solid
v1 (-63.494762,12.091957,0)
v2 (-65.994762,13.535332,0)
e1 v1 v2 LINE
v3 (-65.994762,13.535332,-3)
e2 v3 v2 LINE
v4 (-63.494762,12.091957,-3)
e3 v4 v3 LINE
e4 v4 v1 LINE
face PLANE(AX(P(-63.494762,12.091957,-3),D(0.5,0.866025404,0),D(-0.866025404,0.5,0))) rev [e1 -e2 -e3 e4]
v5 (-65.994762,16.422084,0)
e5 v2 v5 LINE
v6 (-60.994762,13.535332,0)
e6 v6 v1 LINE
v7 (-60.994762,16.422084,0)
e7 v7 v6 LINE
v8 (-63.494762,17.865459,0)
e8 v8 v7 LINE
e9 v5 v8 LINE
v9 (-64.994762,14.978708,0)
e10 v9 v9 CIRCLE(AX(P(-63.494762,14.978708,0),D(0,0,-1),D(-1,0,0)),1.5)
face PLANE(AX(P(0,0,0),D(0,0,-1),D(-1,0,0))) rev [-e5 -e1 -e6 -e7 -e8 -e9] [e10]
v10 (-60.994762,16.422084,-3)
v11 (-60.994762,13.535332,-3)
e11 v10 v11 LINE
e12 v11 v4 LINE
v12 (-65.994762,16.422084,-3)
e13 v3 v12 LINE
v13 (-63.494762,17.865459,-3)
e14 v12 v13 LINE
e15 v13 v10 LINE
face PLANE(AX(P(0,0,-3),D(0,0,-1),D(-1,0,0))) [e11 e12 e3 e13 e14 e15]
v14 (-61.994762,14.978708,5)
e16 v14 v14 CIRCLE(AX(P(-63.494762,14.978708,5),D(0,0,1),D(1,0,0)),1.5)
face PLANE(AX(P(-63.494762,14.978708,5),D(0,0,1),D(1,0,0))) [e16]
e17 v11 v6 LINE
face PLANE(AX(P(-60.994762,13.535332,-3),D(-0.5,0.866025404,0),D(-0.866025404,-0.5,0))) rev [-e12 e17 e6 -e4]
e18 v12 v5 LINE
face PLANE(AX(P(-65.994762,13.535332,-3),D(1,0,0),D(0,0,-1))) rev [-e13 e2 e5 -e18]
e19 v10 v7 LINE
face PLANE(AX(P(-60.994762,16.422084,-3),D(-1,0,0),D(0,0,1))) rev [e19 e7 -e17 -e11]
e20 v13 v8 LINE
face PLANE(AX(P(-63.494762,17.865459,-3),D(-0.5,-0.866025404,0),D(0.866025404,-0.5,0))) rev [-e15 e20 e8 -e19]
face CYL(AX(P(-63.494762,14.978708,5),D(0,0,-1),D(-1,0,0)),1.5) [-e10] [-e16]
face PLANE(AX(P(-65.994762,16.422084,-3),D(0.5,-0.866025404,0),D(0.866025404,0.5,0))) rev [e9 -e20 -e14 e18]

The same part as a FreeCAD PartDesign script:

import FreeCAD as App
import Part
import Sketcher

V = App.Vector
Q = App.Units.Quantity


def add_polygon(sketch, points):
    """Adds a closed chain of lines whose ends are joined by coincident constraints."""
    first, n = sketch.GeometryCount, len(points)
    for a, b in zip(points, points[1:] + points[:1]):
        sketch.addGeometry(Part.LineSegment(App.Vector(*a, 0), App.Vector(*b, 0)), False)
    for i in range(n):
        sketch.addConstraint(Sketcher.Constraint("Coincident", first + i, 2, first + (i + 1) % n, 1))

doc = App.newDocument("Part")
body = doc.addObject("PartDesign::Body", "Body")

# Sketch on XY plane
sketch1 = body.newObject("Sketcher::SketchObject", "Sketch")
sketch1.AttachmentSupport = (doc.getObject("XY_Plane"), [""])
sketch1.MapMode = "FlatFace"
sketch1.addGeometry(Part.Circle(V(-63.494762, 14.978708, 0), V(0, 0, 1), 1.5), False)
sketch1.addConstraint(Sketcher.Constraint("Diameter", 0, Q("3 mm")))
sketch1.addConstraint(Sketcher.Constraint("DistanceX", 0, 3, -1, 1, Q("63.494762 mm")))
sketch1.addConstraint(Sketcher.Constraint("DistanceY", -1, 1, 0, 3, Q("14.978708 mm")))
pad1 = body.newObject("PartDesign::Pad", "Pad")
pad1.Profile = sketch1
pad1.Length = 5

# Sketch on XY plane
sketch2 = body.newObject("Sketcher::SketchObject", "Sketch001")
sketch2.AttachmentSupport = (doc.getObject("XY_Plane"), [""])
sketch2.MapMode = "FlatFace"
add_polygon(sketch2, [(-63.494762, 12.091957), (-65.994762, 13.535332), (-65.994762, 16.422084), (-63.494762, 17.865459), (-60.994762, 16.422084), (-60.994762, 13.535332)])  # lines 0-5
sketch2.addConstraint(Sketcher.Constraint("Vertical", 1))
sketch2.addConstraint(Sketcher.Constraint("Vertical", 4))
sketch2.addConstraint(Sketcher.Constraint("Parallel", 0, 3))
sketch2.addConstraint(Sketcher.Constraint("Parallel", 2, 5))
sketch2.addConstraint(Sketcher.Constraint("Horizontal", 1, 2, 3, 2))
sketch2.addConstraint(Sketcher.Constraint("Horizontal", 0, 2, 4, 2))
sketch2.addConstraint(Sketcher.Constraint("Vertical", 2, 2, 5, 2))
sketch2.addConstraint(Sketcher.Constraint("Angle", 0, Q("150 deg")))
sketch2.addConstraint(Sketcher.Constraint("DistanceX", 1, 2, 3, 2, Q("5 mm")))
sketch2.addConstraint(Sketcher.Constraint("DistanceY", 1, 1, 1, 2, Q("2.886751 mm")))
sketch2.addConstraint(Sketcher.Constraint("DistanceX", 0, 2, -1, 1, Q("65.994762 mm")))
sketch2.addConstraint(Sketcher.Constraint("DistanceY", -1, 1, 2, 2, Q("17.865459 mm")))
pad2 = body.newObject("PartDesign::Pad", "Pad001")
pad2.Profile = sketch2
pad2.Length = 3
pad2.Reversed = True

doc.recompute()
